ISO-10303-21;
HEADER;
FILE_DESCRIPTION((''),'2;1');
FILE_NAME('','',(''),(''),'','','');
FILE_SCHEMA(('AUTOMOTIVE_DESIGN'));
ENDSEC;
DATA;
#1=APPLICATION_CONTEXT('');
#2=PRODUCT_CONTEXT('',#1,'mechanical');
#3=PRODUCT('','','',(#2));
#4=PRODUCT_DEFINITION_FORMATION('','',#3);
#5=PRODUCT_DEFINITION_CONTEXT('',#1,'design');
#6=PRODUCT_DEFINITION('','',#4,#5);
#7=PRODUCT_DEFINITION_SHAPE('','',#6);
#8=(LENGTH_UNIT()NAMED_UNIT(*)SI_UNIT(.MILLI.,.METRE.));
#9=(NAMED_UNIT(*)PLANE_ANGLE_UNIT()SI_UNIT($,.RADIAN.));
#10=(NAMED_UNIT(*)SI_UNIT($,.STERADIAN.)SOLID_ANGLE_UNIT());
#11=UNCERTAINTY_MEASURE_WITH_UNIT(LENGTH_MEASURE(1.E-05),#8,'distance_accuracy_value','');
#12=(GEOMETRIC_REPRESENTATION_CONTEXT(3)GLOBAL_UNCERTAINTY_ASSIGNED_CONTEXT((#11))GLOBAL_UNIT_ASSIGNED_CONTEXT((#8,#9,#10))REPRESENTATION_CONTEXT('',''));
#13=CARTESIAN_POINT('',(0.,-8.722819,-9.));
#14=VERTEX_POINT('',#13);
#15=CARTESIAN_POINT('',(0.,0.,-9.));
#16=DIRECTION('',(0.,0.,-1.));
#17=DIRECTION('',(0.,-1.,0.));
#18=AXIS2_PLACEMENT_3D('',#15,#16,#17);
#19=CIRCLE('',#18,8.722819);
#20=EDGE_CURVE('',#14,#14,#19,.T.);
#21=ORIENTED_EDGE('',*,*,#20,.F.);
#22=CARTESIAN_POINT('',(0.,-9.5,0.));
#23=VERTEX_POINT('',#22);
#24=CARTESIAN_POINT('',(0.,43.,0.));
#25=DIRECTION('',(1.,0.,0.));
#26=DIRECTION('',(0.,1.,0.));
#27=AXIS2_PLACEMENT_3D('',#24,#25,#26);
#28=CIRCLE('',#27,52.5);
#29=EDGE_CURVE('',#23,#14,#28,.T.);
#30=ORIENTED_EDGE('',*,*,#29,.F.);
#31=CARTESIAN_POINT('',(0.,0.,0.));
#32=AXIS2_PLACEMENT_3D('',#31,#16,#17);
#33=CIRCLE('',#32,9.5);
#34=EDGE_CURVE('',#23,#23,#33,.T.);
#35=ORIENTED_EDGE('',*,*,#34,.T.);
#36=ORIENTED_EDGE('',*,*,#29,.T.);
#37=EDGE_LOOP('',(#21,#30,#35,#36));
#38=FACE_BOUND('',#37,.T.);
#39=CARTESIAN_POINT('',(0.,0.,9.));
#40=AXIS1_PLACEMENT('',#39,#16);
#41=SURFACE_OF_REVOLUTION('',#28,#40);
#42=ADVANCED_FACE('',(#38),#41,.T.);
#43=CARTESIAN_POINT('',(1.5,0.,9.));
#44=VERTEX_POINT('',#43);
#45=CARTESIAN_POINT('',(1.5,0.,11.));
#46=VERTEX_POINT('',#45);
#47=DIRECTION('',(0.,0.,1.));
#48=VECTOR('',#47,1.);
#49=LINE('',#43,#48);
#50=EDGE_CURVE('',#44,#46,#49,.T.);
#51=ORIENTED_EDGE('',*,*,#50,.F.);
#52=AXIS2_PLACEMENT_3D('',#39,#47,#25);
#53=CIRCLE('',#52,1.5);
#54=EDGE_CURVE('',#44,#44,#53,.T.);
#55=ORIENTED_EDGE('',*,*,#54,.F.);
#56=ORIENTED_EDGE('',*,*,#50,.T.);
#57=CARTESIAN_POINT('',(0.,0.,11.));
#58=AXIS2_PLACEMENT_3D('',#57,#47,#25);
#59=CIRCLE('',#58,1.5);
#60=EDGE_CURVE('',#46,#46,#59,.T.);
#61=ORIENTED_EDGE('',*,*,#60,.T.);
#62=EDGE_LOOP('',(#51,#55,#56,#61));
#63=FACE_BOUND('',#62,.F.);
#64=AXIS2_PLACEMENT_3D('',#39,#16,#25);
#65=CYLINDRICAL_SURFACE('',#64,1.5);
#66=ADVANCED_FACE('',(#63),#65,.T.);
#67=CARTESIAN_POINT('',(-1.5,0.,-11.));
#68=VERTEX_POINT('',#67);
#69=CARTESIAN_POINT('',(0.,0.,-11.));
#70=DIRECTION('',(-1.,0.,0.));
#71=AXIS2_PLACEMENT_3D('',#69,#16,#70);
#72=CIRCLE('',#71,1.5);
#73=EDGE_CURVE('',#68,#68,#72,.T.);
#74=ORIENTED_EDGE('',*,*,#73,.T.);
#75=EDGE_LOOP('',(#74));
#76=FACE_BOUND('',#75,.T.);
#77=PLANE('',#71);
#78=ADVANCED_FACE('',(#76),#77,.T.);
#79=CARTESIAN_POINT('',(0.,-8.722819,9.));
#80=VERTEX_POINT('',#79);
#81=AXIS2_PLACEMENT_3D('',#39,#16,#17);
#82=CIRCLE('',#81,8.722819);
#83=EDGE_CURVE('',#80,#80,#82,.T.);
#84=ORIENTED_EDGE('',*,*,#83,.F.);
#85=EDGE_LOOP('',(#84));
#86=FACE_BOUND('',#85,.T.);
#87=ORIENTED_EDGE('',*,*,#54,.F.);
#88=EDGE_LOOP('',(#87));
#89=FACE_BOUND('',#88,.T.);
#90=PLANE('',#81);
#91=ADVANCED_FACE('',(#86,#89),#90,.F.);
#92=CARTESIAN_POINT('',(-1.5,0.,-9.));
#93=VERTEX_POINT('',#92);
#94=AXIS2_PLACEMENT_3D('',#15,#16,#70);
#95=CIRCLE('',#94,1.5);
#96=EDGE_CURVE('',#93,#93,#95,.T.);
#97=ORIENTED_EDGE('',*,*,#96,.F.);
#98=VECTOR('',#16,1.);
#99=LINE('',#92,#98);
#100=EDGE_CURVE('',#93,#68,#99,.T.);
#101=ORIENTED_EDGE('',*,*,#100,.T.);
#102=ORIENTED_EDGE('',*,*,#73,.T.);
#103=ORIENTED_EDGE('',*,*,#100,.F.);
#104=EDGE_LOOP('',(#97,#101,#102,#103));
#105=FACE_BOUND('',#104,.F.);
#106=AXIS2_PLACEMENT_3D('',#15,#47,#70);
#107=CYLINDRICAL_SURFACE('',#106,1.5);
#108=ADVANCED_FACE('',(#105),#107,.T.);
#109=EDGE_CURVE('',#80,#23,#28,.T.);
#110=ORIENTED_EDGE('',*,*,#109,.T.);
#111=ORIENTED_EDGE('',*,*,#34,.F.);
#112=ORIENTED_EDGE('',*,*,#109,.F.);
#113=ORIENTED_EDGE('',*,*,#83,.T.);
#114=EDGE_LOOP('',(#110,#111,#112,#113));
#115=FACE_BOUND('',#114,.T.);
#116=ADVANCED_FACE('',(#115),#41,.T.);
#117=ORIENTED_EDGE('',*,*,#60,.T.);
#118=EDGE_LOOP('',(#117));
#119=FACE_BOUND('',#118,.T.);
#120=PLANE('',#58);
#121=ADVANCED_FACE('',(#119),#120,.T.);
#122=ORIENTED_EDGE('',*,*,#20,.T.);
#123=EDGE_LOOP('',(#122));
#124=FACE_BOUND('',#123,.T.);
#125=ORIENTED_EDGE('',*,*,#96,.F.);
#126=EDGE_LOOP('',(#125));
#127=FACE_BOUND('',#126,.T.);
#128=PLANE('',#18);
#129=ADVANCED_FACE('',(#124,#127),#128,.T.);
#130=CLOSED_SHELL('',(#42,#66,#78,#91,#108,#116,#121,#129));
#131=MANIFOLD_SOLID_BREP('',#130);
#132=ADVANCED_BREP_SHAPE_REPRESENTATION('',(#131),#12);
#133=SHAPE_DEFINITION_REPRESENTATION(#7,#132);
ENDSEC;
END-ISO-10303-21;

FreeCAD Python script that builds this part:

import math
import FreeCAD as App
import Part
import Sketcher

doc = App.newDocument("Part")
params = doc.addObject("Spreadsheet::Sheet", "Params")
for row, (alias, value) in enumerate([
    ("sketch1_radius", "52.5 mm"),
    ("sketch1_height", "18 mm"),
    ("revolution_angle", "360 deg"),
    ("sketch2_diameter", "3 mm"),
    ("pad1_length", "2 mm"),
    ("sketch3_diameter", "3 mm"),
    ("pad2_length", "2 mm"),
], start=1):
    params.set(f"A{row}", alias)
    params.set(f"B{row}", "=" + value)
    params.setAlias(f"B{row}", alias)

body = doc.addObject("PartDesign::Body", "Body")

# Sketch on YZ plane
sketch1 = body.newObject("Sketcher::SketchObject", "Sketch")
sketch1.AttachmentSupport = (doc.getObject("YZ_Plane"), [""])
sketch1.MapMode = "FlatFace"
sketch1.addGeometry([
    Part.ArcOfCircle(Part.Circle(App.Vector(43, 0, 0), App.Vector(0, 0, 1), 52), math.radians(170.13), math.radians(189.87)),
    Part.LineSegment(App.Vector(-9, -9, 0), App.Vector(0, -9, 0)),
    Part.LineSegment(App.Vector(0, -9, 0), App.Vector(0, 9, 0)),
    Part.LineSegment(App.Vector(0, 9, 0), App.Vector(-9, 9, 0)),
], False)
sketch1.addConstraint([
    Sketcher.Constraint("Coincident", 0, 2, 1, 1),
    Sketcher.Constraint("Coincident", 1, 2, 2, 1),
    Sketcher.Constraint("Coincident", 2, 2, 3, 1),
    Sketcher.Constraint("Coincident", 3, 2, 0, 1),
    Sketcher.Constraint("Horizontal", 1),
    Sketcher.Constraint("Vertical", 2),
    Sketcher.Constraint("Horizontal", 3),
    Sketcher.Constraint("Symmetric", 1, 2, 2, 2, -1, 1),
    Sketcher.Constraint("PointOnObject", 0, 3, -1),
    Sketcher.Constraint("Radius", 0, 52.5),
    Sketcher.Constraint("DistanceY", 2, 1, 2, 2, 18.0),
    Sketcher.Constraint("DistanceX", -1, 1, 0, 3, 43.0),
])
sketch1.setExpression("Constraints[9]", "Params.sketch1_radius")
sketch1.setExpression("Constraints[10]", "Params.sketch1_height")
revolution = body.newObject("PartDesign::Revolution", "Revolution")
revolution.Profile = sketch1
revolution.ReferenceAxis = (sketch1, ["V_Axis"])
revolution.setExpression("Angle", "Params.revolution_angle")

# Sketch on XY plane
sketch2 = body.newObject("Sketcher::SketchObject", "Sketch001")
sketch2.AttachmentSupport = (doc.getObject("XY_Plane"), [""])
sketch2.MapMode = "FlatFace"
sketch2.AttachmentOffset = App.Placement(App.Vector(0, 0, 9), App.Rotation())
sketch2.addGeometry(Part.Circle(App.Vector(0, 0, 0), App.Vector(0, 0, 1), 1.5), False)
sketch2.addConstraint([
    Sketcher.Constraint("Coincident", 0, 3, -1, 1),
    Sketcher.Constraint("Diameter", 0, 3.0),
])
sketch2.setExpression("Constraints[1]", "Params.sketch2_diameter")
pad1 = body.newObject("PartDesign::Pad", "Pad")
pad1.Profile = sketch2
pad1.setExpression("Length", "Params.pad1_length")

# Sketch on XY plane
sketch3 = body.newObject("Sketcher::SketchObject", "Sketch002")
sketch3.AttachmentSupport = (doc.getObject("XY_Plane"), [""])
sketch3.MapMode = "FlatFace"
sketch3.AttachmentOffset = App.Placement(App.Vector(0, 0, -9), App.Rotation())
sketch3.addGeometry(Part.Circle(App.Vector(0, 0, 0), App.Vector(0, 0, 1), 1.5), False)
sketch3.addConstraint([
    Sketcher.Constraint("Coincident", 0, 3, -1, 1),
    Sketcher.Constraint("Diameter", 0, 3.0),
])
sketch3.setExpression("Constraints[1]", "Params.sketch3_diameter")
pad2 = body.newObject("PartDesign::Pad", "Pad001")
pad2.Profile = sketch3
pad2.setExpression("Length", "Params.pad2_length")
pad2.Reversed = True

doc.recompute()
